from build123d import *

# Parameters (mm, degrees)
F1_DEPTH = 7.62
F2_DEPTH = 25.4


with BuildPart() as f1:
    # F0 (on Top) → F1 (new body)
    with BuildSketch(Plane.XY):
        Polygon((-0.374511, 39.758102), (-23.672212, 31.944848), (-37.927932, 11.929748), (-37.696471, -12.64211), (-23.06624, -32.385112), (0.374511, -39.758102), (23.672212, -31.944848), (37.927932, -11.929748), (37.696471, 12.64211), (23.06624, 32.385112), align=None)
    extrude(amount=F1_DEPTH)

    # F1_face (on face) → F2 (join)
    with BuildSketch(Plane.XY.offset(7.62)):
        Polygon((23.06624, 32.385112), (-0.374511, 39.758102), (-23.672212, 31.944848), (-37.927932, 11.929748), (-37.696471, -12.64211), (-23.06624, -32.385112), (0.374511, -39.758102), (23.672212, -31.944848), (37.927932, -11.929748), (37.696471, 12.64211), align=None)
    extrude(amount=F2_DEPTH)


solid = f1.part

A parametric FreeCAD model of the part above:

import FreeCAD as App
import Part
import Sketcher

V = App.Vector
Q = App.Units.Quantity


def add_polygon(sketch, points):
    """Adds a closed chain of lines whose ends are joined by coincident constraints."""
    first, n = sketch.GeometryCount, len(points)
    for a, b in zip(points, points[1:] + points[:1]):
        sketch.addGeometry(Part.LineSegment(App.Vector(*a, 0), App.Vector(*b, 0)), False)
    for i in range(n):
        sketch.addConstraint(Sketcher.Constraint("Coincident", first + i, 2, first + (i + 1) % n, 1))

doc = App.newDocument("Part")
body = doc.addObject("PartDesign::Body", "Body")

# Sketch on XY plane
sketch1 = body.newObject("Sketcher::SketchObject", "Sketch")
sketch1.AttachmentSupport = (doc.getObject("XY_Plane"), [""])
sketch1.MapMode = "FlatFace"
add_polygon(sketch1, [(0, 40), (-24, 32), (-38, 12), (-38, -13), (-23, -32), (0, -40), (24, -32), (38, -12), (38, 13), (23, 32)])  # lines 0-9
sketch1.addConstraint([
    Sketcher.Constraint("Symmetric", 0, 2, 5, 2, -1, 1),
    Sketcher.Constraint("Symmetric", 1, 2, 6, 2, -1, 1),
    Sketcher.Constraint("Symmetric", 2, 2, 7, 2, -1, 1),
    Sketcher.Constraint("Symmetric", 3, 2, 8, 2, -1, 1),
    Sketcher.Constraint("Symmetric", 4, 2, 9, 2, -1, 1),
    Sketcher.Constraint("Equal", 0, 1),
    Sketcher.Constraint("Equal", 1, 2),
    Sketcher.Constraint("Equal", 2, 3),
    Sketcher.Constraint("Equal", 3, 4),
    Sketcher.Constraint("DistanceY", 1, 2, 0, 2, Q("20.0151 mm")),
    Sketcher.Constraint("DistanceY", 3, 2, 2, 2, Q("19.743002 mm")),
    Sketcher.Constraint("DistanceX", 4, 2, 5, 2, Q("23.297701 mm")),
    Sketcher.Constraint("Distance", 0, Q("24.572949 mm")),
    Sketcher.Constraint("DistanceX", 0, 2, -1, 1, Q("23.672212 mm")),
    Sketcher.Constraint("DistanceY", -1, 1, 0, 2, Q("31.944848 mm")),
])
pad1 = body.newObject("PartDesign::Pad", "Pad")
pad1.Profile = sketch1
pad1.Length = Q("0.3 in")

# Sketch on XY plane
sketch2 = body.newObject("Sketcher::SketchObject", "Sketch001")
sketch2.AttachmentSupport = (doc.getObject("XY_Plane"), [""])
sketch2.MapMode = "FlatFace"
sketch2.AttachmentOffset = App.Placement(V(0, 0, 0.3 * 25.4), App.Rotation())
add_polygon(sketch2, [(23, 32), (0, 40), (-24, 32), (-38, 12), (-38, -13), (-23, -32), (0, -40), (24, -32), (38, -12), (38, 13)])  # lines 0-9
sketch2.addConstraint([
    Sketcher.Constraint("Symmetric", 0, 2, 5, 2, -1, 1),
    Sketcher.Constraint("Symmetric", 1, 2, 6, 2, -1, 1),
    Sketcher.Constraint("Symmetric", 2, 2, 7, 2, -1, 1),
    Sketcher.Constraint("Symmetric", 3, 2, 8, 2, -1, 1),
    Sketcher.Constraint("Symmetric", 4, 2, 9, 2, -1, 1),
    Sketcher.Constraint("Equal", 0, 1),
    Sketcher.Constraint("Equal", 1, 2),
    Sketcher.Constraint("Equal", 2, 3),
    Sketcher.Constraint("Equal", 3, 4),
    Sketcher.Constraint("DistanceX", 1, 2, 0, 2, Q("23.297701 mm")),
    Sketcher.Constraint("DistanceY", 2, 2, 1, 2, Q("20.0151 mm")),
    Sketcher.Constraint("DistanceY", 4, 2, 3, 2, Q("19.743002 mm")),
    Sketcher.Constraint("Distance", 0, Q("24.572948 mm")),
    Sketcher.Constraint("DistanceX", 0, 2, -1, 1, Q("0.374511 mm")),
    Sketcher.Constraint("DistanceY", -1, 1, 1, 2, Q("31.944848 mm")),
])
pad2 = body.newObject("PartDesign::Pad", "Pad001")
pad2.Profile = sketch2
pad2.Length = Q("1 in")

doc.recompute()
